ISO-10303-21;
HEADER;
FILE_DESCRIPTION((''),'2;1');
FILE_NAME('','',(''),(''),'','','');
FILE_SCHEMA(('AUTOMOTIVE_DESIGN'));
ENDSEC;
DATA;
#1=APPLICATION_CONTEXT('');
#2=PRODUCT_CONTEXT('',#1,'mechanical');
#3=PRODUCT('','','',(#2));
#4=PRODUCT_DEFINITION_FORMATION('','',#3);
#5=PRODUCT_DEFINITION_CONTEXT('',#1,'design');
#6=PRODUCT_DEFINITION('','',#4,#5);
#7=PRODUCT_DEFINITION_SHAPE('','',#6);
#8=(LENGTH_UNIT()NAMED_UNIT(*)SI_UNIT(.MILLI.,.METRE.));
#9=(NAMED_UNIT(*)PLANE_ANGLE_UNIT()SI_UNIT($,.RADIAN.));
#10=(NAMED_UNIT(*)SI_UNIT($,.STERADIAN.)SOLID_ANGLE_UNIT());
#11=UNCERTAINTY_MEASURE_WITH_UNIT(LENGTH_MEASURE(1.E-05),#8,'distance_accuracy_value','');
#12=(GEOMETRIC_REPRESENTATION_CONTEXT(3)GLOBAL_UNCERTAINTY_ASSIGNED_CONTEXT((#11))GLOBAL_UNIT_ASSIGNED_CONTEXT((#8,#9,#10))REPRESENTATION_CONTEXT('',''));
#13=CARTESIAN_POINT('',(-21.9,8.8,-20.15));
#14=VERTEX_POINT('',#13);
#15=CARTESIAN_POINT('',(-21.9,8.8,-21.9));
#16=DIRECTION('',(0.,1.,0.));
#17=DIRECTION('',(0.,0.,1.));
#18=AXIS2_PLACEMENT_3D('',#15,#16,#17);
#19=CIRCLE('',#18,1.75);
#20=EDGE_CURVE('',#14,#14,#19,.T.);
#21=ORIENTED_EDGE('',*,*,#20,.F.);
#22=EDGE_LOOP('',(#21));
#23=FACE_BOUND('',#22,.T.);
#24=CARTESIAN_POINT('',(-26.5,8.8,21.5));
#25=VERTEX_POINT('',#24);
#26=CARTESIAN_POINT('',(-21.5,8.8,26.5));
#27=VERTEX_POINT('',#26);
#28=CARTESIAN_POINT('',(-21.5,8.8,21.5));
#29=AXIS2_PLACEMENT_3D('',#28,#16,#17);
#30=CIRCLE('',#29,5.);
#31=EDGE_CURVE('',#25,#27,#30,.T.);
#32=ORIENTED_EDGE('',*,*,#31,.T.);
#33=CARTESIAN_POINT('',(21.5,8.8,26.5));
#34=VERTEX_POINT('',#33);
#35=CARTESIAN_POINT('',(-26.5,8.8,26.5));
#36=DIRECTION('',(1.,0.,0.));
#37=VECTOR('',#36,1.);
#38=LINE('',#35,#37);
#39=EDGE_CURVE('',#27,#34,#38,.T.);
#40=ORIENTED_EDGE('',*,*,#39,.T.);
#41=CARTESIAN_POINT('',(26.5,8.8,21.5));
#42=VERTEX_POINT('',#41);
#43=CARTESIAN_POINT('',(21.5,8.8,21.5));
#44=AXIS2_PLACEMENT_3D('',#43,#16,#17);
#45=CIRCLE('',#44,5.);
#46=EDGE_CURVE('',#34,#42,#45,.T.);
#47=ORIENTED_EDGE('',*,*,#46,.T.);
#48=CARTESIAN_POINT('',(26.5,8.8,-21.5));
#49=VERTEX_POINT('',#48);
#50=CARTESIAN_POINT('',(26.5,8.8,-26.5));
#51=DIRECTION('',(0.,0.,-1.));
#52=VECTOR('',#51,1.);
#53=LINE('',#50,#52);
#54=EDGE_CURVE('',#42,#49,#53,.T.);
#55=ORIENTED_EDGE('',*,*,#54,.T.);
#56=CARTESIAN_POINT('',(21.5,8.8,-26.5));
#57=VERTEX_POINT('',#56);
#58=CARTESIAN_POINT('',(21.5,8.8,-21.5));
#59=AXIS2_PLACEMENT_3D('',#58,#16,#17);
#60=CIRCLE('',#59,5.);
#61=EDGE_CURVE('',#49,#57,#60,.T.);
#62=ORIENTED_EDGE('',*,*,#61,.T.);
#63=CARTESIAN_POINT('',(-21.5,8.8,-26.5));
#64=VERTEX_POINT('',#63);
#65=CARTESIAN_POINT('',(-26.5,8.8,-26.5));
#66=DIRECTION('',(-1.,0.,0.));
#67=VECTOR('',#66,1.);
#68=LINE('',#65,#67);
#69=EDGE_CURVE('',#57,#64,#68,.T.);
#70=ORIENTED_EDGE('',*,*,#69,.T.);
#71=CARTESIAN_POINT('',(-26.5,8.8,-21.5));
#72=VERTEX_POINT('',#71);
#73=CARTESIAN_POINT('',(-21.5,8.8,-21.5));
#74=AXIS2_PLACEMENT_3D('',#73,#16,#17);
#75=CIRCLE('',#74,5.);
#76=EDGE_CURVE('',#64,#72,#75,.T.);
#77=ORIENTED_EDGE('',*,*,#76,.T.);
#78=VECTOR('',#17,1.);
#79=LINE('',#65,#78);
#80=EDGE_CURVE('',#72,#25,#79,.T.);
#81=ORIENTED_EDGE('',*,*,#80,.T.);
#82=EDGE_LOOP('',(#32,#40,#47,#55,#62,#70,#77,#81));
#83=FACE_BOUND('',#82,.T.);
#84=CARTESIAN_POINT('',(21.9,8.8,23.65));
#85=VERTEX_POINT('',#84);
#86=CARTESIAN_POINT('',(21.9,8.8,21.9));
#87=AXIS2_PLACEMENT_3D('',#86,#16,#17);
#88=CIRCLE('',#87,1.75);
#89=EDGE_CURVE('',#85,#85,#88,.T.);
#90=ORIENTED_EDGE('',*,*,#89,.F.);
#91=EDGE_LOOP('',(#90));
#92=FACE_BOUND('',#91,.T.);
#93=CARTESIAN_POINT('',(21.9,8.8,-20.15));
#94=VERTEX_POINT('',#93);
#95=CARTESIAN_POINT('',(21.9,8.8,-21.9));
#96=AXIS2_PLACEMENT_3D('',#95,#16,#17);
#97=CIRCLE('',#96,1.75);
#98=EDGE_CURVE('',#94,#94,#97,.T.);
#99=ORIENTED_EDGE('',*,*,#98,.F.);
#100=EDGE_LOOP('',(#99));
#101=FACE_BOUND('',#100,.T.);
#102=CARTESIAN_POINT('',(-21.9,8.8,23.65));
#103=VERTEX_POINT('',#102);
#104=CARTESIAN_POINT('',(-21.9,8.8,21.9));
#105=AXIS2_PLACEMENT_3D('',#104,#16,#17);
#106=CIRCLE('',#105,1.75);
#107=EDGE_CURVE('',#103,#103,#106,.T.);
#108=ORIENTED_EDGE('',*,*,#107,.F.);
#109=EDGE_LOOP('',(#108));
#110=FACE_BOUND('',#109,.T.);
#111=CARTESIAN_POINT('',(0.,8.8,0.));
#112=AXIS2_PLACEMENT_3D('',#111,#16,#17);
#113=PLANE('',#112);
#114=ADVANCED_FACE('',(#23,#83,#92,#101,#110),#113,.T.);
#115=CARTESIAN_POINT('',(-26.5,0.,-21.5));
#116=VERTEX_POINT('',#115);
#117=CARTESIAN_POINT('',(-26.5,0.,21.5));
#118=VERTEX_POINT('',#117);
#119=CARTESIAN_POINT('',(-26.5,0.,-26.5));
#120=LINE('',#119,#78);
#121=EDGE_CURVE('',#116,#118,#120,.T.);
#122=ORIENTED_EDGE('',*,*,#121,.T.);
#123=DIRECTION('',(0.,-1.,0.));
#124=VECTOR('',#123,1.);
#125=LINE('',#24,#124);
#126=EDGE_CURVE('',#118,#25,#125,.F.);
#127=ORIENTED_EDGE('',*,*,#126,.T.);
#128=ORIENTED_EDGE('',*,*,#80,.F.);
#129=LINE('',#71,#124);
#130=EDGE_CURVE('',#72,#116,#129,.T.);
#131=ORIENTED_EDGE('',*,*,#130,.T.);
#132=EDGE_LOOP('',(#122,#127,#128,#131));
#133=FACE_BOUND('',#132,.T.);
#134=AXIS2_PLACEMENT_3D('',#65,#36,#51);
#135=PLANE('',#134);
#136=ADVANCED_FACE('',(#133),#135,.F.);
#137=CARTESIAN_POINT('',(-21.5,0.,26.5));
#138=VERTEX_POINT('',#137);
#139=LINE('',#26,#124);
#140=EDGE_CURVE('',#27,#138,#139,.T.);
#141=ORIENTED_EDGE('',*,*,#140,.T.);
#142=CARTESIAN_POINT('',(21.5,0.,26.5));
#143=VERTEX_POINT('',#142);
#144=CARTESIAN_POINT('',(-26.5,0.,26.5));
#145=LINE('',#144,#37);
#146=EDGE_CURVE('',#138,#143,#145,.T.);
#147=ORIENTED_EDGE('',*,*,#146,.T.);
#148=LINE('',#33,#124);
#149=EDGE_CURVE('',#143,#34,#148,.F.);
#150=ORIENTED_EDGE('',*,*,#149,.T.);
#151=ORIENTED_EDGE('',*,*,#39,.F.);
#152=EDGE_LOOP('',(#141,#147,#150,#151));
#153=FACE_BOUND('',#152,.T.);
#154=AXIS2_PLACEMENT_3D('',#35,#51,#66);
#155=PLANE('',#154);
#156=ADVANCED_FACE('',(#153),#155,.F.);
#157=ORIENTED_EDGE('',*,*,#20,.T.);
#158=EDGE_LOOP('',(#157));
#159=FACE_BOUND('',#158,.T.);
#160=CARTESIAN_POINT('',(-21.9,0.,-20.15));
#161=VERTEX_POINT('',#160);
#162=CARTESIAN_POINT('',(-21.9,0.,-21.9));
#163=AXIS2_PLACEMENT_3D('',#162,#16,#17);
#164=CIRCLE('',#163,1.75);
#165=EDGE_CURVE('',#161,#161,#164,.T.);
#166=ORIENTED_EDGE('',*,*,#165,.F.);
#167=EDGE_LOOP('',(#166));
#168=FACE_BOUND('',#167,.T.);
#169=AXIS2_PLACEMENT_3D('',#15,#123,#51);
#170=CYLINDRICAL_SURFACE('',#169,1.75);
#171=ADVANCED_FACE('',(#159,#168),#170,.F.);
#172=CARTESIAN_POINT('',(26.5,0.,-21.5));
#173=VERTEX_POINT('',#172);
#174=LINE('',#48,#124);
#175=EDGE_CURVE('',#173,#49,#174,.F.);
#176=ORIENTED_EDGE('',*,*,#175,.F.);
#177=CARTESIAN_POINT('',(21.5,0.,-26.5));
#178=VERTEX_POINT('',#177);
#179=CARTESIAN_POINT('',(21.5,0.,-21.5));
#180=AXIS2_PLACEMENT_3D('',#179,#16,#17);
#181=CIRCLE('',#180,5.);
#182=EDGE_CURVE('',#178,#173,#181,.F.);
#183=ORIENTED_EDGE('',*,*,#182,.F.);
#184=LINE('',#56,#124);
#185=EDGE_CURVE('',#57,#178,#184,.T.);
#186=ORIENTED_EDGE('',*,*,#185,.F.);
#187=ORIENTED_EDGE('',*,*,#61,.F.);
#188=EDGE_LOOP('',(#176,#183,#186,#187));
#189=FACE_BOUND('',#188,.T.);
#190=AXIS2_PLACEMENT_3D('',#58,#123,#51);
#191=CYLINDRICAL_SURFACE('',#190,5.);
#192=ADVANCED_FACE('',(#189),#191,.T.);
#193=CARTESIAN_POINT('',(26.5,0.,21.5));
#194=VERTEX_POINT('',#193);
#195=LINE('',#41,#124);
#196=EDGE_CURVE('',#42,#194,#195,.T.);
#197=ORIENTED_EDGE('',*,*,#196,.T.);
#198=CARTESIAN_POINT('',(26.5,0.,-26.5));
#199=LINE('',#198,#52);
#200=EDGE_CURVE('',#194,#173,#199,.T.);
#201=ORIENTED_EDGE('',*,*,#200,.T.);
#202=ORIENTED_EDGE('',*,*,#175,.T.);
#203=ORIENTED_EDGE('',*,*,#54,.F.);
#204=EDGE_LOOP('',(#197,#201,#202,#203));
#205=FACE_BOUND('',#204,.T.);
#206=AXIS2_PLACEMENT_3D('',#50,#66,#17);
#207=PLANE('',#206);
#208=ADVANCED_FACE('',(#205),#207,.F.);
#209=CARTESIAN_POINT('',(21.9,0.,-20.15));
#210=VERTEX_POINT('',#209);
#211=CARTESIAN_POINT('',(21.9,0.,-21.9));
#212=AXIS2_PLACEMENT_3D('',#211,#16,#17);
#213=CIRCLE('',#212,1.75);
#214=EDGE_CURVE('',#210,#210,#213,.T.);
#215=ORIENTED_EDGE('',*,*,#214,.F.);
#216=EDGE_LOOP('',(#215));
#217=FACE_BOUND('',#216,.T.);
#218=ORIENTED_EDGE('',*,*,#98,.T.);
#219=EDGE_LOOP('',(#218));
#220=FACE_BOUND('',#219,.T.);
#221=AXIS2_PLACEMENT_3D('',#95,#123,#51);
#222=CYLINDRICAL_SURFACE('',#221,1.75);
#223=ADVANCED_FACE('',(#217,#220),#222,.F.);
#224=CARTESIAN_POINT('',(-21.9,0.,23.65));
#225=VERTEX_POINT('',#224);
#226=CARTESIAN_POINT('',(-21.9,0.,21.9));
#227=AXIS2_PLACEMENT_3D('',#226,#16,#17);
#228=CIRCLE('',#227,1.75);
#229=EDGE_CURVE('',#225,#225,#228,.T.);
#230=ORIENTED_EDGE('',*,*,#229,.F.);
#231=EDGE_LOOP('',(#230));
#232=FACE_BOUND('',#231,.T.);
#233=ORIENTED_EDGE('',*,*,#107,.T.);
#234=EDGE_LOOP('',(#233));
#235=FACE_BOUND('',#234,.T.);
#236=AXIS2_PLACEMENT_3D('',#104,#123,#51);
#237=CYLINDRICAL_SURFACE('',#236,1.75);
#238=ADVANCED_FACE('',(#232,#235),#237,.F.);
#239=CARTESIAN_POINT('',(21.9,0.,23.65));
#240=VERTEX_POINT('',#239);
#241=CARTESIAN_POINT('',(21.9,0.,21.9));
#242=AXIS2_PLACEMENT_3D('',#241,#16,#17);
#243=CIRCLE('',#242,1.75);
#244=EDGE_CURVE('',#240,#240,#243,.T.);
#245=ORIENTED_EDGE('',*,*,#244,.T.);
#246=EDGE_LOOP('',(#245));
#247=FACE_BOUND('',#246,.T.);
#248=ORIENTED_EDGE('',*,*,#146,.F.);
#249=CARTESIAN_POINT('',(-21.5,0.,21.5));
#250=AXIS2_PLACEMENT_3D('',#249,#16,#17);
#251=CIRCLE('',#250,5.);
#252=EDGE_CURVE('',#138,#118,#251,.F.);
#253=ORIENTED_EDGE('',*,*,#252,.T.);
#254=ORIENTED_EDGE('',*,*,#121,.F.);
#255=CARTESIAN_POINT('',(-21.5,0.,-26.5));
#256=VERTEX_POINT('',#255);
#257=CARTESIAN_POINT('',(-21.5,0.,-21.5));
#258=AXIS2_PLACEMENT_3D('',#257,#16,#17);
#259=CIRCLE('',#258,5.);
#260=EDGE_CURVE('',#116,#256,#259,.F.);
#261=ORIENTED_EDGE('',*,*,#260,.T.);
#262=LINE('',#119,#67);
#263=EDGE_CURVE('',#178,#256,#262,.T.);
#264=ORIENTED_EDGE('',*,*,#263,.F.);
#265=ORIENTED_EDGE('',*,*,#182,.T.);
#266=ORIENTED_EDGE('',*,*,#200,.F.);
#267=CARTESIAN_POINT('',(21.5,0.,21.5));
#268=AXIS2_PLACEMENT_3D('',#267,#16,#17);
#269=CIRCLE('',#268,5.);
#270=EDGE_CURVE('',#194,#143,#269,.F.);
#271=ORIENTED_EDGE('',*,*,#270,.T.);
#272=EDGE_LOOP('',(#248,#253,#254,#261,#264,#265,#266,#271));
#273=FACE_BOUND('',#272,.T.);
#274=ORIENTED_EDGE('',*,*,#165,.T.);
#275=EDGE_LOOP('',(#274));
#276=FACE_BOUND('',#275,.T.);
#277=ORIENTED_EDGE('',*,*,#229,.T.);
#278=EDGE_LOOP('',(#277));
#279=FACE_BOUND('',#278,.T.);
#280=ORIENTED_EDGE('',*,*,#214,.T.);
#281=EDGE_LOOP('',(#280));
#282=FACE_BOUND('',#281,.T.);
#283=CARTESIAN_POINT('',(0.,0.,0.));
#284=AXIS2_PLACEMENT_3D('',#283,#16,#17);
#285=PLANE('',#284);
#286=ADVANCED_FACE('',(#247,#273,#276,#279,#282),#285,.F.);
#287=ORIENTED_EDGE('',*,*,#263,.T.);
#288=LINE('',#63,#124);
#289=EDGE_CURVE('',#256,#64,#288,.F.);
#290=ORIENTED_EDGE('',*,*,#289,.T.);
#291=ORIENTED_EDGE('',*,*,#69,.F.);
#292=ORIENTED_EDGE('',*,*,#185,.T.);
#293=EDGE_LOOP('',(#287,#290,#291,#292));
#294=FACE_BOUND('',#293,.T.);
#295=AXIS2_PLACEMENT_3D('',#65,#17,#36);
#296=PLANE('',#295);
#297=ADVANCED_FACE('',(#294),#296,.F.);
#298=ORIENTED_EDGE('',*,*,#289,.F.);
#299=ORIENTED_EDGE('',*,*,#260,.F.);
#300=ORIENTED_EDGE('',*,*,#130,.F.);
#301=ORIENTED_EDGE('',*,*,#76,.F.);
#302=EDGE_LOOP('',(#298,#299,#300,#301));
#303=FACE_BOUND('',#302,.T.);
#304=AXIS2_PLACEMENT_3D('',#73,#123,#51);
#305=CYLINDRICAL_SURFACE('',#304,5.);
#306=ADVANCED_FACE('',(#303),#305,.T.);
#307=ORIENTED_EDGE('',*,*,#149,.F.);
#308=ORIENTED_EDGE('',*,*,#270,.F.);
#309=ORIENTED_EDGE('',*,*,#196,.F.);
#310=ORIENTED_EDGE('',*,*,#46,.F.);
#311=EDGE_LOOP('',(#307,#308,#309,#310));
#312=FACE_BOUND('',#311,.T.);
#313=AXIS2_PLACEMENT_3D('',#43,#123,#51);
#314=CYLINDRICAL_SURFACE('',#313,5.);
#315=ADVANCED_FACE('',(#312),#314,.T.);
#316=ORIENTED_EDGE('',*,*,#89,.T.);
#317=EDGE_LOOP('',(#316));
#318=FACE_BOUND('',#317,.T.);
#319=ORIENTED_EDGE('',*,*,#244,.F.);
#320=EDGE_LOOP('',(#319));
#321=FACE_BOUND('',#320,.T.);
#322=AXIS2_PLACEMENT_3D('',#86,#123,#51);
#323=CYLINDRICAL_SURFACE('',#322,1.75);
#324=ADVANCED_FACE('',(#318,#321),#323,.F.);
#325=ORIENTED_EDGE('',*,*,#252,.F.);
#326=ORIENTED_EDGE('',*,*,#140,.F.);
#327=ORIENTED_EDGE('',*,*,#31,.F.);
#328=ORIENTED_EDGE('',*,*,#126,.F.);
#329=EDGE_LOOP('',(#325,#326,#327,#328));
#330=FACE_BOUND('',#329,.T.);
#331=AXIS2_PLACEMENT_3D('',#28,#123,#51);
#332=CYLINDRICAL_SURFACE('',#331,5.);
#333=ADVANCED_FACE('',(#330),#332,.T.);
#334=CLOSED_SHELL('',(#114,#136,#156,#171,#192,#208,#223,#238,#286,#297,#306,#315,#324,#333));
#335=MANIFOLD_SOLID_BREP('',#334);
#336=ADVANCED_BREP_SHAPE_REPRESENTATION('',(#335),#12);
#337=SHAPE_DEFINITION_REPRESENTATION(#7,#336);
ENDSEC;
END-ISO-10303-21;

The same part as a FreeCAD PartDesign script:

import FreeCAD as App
import Part
import Sketcher
from FreeCAD import Vector
Q = App.Units.Quantity


def edges_at(feature, points):
    """Names of the edges that pass closest to the given points."""
    edges = feature.Shape.Edges
    near = lambda p: min(range(len(edges)), key=lambda i: edges[i].distToShape(Part.Vertex(*p))[0])
    return sorted({f"Edge{near(p) + 1}" for p in points})

doc = App.newDocument("Part")
params = doc.addObject("Spreadsheet::Sheet", "Params")
for row, (alias, value) in enumerate([
    ("sketch1_diameter", "3.5 mm"),
    ("sketch1_width", "53 mm"),
    ("pad1_length", "8.8 mm"),
    ("fillet_radius", "5 mm"),
], start=1):
    params.set(f"A{row}", alias)
    params.set(f"B{row}", "=" + value)
    params.setAlias(f"B{row}", alias)

body = doc.addObject("PartDesign::Body", "Body")

# Sketch on XZ plane
sketch1 = doc.addObject("Sketcher::SketchObject", "Sketch")
body.addObject(sketch1)
sketch1.AttachmentSupport = (doc.XZ_Plane, [""])
sketch1.MapMode = "FlatFace"
sketch1.addGeometry([
    Part.LineSegment(Vector(-26.5, -26.5, 0), Vector(-26.5, 26.5, 0)),  # 0
    Part.LineSegment(Vector(-26.5, 26.5, 0), Vector(26.5, 26.5, 0)),  # 1
    Part.LineSegment(Vector(26.5, 26.5, 0), Vector(26.5, -26.5, 0)),  # 2
    Part.LineSegment(Vector(26.5, -26.5, 0), Vector(-26.5, -26.5, 0)),  # 3
    Part.Circle(Vector(-21.9, 21.9, 0), Vector(0, 0, 1), 1.75),  # 4
    Part.Circle(Vector(21.9, 21.9, 0), Vector(0, 0, 1), 1.75),  # 5
    Part.Circle(Vector(-21.9, -21.9, 0), Vector(0, 0, 1), 1.75),  # 6
    Part.Circle(Vector(21.9, -21.9, 0), Vector(0, 0, 1), 1.75),  # 7
], False)
sketch1.addConstraint([
    Sketcher.Constraint("Coincident", 0, 2, 1, 1),
    Sketcher.Constraint("Coincident", 1, 2, 2, 1),
    Sketcher.Constraint("Coincident", 2, 2, 3, 1),
    Sketcher.Constraint("Coincident", 3, 2, 0, 1),
    Sketcher.Constraint("Vertical", 0),
    Sketcher.Constraint("Horizontal", 1),
    Sketcher.Constraint("Vertical", 2),
    Sketcher.Constraint("Horizontal", 3),
    Sketcher.Constraint("Equal", 4, 5),
    Sketcher.Constraint("Equal", 5, 6),
    Sketcher.Constraint("Equal", 6, 7),
    Sketcher.Constraint("Symmetric", 5, 3, 6, 3, -1, 1),
    Sketcher.Constraint("Symmetric", 4, 3, 7, 3, -1, 1),
    Sketcher.Constraint("Symmetric", 0, 2, 2, 2, -1, 1),
    Sketcher.Constraint("Symmetric", 4, 3, 5, 3, -2),
    Sketcher.Constraint("Equal", 3, 0),
    Sketcher.Constraint("Diameter", 4, Q("3.5 mm")),
    Sketcher.Constraint("DistanceX", 1, 1, 1, 2, Q("53 mm")),
    Sketcher.Constraint("DistanceX", 4, 3, -1, 1, Q("21.9 mm")),
    Sketcher.Constraint("DistanceY", -1, 1, 4, 3, Q("21.9 mm")),
])
sketch1.setExpression("Constraints[16]", "Params.sketch1_diameter")
sketch1.setExpression("Constraints[17]", "Params.sketch1_width")
pad1 = doc.addObject("PartDesign::Pad", "Pad")
body.addObject(pad1)
pad1.Profile = sketch1
pad1.setExpression("Length", "Params.pad1_length")
pad1.Reversed = True
doc.recompute()

fillet = doc.addObject("PartDesign::Fillet", "Fillet")
body.addObject(fillet)
fillet.Base = (pad1, edges_at(pad1, [
    (26.5, 4.4, 26.5),
    (-26.5, 4.4, 26.5),
    (-26.5, 4.4, -26.5),
    (26.5, 4.4, -26.5),
]))
fillet.setExpression("Radius", "Params.fillet_radius")

doc.recompute()
